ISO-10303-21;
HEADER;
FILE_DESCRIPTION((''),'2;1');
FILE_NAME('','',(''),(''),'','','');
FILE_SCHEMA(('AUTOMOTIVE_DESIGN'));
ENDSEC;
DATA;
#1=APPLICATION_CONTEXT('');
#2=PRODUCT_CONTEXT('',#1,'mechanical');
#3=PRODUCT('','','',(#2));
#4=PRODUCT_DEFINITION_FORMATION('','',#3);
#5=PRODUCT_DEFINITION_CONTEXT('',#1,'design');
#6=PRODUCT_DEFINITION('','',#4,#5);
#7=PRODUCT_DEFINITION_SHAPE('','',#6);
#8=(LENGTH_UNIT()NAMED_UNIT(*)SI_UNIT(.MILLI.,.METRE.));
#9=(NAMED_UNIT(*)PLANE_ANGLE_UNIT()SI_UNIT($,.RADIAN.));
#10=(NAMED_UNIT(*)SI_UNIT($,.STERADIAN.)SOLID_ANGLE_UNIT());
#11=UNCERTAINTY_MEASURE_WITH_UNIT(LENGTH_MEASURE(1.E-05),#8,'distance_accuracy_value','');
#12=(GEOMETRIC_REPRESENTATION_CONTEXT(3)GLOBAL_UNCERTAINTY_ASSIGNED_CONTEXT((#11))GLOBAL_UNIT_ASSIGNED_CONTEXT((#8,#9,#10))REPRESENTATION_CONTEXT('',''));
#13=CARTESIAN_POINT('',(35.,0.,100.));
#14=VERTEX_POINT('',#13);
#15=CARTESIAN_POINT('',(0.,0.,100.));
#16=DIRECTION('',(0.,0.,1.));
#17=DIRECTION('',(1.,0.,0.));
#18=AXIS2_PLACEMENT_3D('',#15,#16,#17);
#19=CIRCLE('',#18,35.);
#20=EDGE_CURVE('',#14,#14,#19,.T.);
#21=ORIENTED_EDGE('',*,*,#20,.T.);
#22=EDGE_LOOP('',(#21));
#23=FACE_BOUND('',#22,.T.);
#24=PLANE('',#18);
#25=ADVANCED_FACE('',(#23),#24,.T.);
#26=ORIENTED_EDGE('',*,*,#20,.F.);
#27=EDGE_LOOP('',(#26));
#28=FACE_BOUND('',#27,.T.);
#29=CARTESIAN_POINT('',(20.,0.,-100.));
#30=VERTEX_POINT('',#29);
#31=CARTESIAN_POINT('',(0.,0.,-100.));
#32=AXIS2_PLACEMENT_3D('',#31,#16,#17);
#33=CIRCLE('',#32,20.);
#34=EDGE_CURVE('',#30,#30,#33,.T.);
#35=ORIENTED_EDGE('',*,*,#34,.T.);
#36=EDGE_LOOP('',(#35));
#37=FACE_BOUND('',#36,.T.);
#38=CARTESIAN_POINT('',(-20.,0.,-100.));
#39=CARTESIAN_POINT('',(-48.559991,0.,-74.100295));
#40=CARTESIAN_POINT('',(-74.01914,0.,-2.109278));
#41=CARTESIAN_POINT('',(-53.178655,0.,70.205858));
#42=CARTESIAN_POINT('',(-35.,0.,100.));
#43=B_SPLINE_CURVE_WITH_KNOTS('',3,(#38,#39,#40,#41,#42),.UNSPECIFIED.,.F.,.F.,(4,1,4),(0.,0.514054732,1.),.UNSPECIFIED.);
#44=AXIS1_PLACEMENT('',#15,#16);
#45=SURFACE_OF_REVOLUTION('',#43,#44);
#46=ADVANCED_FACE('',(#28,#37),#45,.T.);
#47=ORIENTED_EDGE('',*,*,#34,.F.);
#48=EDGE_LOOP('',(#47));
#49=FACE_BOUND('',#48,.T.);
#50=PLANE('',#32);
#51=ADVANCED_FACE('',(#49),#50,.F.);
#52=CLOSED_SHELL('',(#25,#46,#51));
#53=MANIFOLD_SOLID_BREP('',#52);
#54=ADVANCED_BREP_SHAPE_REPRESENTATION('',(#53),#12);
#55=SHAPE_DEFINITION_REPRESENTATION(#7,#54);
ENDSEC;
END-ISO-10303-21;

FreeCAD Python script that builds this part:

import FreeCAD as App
import Part
import Sketcher

doc = App.newDocument("Part")
body = doc.addObject("PartDesign::Body", "Body")

# Sketch on XZ plane
sketch1 = body.newObject("Sketcher::SketchObject", "Sketch")
sketch1.AttachmentSupport = (doc.getObject("XZ_Plane"), [""])
sketch1.MapMode = "FlatFace"
sketch1.addGeometry([
    Part.LineSegment(App.Vector(0, -100, 0), App.Vector(-20, -100, 0)),
    Part.BSplineCurve([App.Vector(-20, -100, 0), App.Vector(-48.559991, -74.100295, 0), App.Vector(-74.01914, -2.109278, 0), App.Vector(-53.178655, 70.205858, 0), App.Vector(-35, 100, 0)], [4, 1, 4], [0, 0.514054732, 1], False, 3, [1, 1, 1, 1, 1], False),
    Part.LineSegment(App.Vector(-35, 100, 0), App.Vector(0, 100, 0)),
    Part.LineSegment(App.Vector(0, 100, 0), App.Vector(0, -100, 0)),
], False)
sketch1.addConstraint([
    Sketcher.Constraint("Block", 1),
    Sketcher.Constraint("Coincident", 0, 2, 1, 1),
    Sketcher.Constraint("Coincident", 1, 2, 2, 1),
    Sketcher.Constraint("Coincident", 2, 2, 3, 1),
    Sketcher.Constraint("Coincident", 3, 2, 0, 1),
    Sketcher.Constraint("Horizontal", 0),
    Sketcher.Constraint("Horizontal", 2),
    Sketcher.Constraint("Vertical", 3),
    Sketcher.Constraint("PointOnObject", 2, 2, -2),
])
revolution = body.newObject("PartDesign::Revolution", "Revolution")
revolution.Profile = sketch1
revolution.ReferenceAxis = (sketch1, ["V_Axis"])
revolution.Angle = 360

doc.recompute()
